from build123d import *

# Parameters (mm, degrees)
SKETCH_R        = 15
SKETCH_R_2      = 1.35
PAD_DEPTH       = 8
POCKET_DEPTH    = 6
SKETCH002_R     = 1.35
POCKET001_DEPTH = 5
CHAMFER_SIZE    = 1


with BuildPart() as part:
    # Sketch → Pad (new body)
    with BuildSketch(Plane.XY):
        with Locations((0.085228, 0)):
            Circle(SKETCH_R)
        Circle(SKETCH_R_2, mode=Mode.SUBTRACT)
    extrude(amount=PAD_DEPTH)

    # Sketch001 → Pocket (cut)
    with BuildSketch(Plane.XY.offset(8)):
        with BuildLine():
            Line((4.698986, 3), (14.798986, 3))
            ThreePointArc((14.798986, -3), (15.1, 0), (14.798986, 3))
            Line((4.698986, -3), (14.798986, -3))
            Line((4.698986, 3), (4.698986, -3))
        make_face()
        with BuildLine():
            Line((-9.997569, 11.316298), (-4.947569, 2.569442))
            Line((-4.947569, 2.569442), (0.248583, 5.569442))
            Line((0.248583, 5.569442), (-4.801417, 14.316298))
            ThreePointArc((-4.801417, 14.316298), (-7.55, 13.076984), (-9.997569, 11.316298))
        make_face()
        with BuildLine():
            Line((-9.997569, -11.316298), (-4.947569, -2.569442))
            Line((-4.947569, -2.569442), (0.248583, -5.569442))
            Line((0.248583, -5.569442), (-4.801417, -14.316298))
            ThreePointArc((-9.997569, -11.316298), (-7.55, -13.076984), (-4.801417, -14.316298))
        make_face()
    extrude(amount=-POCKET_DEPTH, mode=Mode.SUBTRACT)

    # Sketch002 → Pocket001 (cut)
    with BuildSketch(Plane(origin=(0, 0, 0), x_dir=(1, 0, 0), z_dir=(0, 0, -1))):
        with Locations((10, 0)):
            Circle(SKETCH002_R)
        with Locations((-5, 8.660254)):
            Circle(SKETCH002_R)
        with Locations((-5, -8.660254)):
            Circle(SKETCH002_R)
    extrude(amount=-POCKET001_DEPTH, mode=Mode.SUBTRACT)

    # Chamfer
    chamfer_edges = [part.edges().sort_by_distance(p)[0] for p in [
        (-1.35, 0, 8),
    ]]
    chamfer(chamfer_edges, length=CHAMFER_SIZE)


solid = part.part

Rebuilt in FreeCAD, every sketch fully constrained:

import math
import FreeCAD as App
import Part
import Sketcher
Q = App.Units.Quantity


def edges_at(feature, points):
    """Names of the edges that pass closest to the given points."""
    edges = feature.Shape.Edges
    near = lambda p: min(range(len(edges)), key=lambda i: edges[i].distToShape(Part.Vertex(*p))[0])
    return sorted({f"Edge{near(p) + 1}" for p in points})

doc = App.newDocument("Part")
body = doc.addObject("PartDesign::Body", "Body")

# Sketch on XY plane
sketch1 = body.newObject("Sketcher::SketchObject", "Sketch")
sketch1.AttachmentSupport = (doc.getObject("XY_Plane"), [""])
sketch1.MapMode = "FlatFace"
sketch1.addGeometry(Part.Circle(App.Vector(0.1, 0, 0), App.Vector(0, 0, 1), 15), False)
sketch1.addGeometry(Part.Circle(App.Vector(0, 0, 0), App.Vector(0, 0, 1), 1.4), False)
sketch1.addConstraint(Sketcher.Constraint("Coincident", 1, 3, -1, 1))
sketch1.addConstraint(Sketcher.Constraint("PointOnObject", 0, 3, -1))
sketch1.addConstraint(Sketcher.Constraint("Diameter", 0, Q("30 mm")))
sketch1.addConstraint(Sketcher.Constraint("Diameter", 1, Q("2.7 mm")))
sketch1.addConstraint(Sketcher.Constraint("DistanceX", -1, 1, 0, 3, Q("0.085228 mm")))
pad1 = body.newObject("PartDesign::Pad", "Pad")
pad1.Profile = sketch1
pad1.Length = 8

# Sketch on XY plane
sketch2 = body.newObject("Sketcher::SketchObject", "Sketch001")
sketch2.AttachmentSupport = (doc.getObject("XY_Plane"), [""])
sketch2.MapMode = "FlatFace"
sketch2.AttachmentOffset = App.Placement(App.Vector(0, 0, 8), App.Rotation())
sketch2.addGeometry(Part.LineSegment(App.Vector(15, 3, 0), App.Vector(5, 3, 0)), False)
sketch2.addGeometry(Part.LineSegment(App.Vector(5, 3, 0), App.Vector(5, -3, 0)), False)
sketch2.addGeometry(Part.LineSegment(App.Vector(5, -3, 0), App.Vector(15, -3, 0)), False)
sketch2.addGeometry(Part.ArcOfCircle(Part.Circle(App.Vector(0, 0, 0), App.Vector(0, 0, 1), 15), math.radians(-11), math.radians(11)), False)
sketch2.addGeometry(Part.LineSegment(App.Vector(-10, 11, 0), App.Vector(-5, 3, 0)), False)
sketch2.addGeometry(Part.LineSegment(App.Vector(-5, 3, 0), App.Vector(0, 6, 0)), False)
sketch2.addGeometry(Part.LineSegment(App.Vector(0, 6, 0), App.Vector(-5, 14, 0)), False)
sketch2.addGeometry(Part.ArcOfCircle(Part.Circle(App.Vector(0, 0, 0), App.Vector(0, 0, 1), 15), math.radians(109), math.radians(131)), False)
sketch2.addGeometry(Part.LineSegment(App.Vector(-5, -3, 0), App.Vector(-10, -11, 0)), False)
sketch2.addGeometry(Part.ArcOfCircle(Part.Circle(App.Vector(0, 0, 0), App.Vector(0, 0, 1), 15), math.radians(-131), math.radians(-109)), False)
sketch2.addGeometry(Part.LineSegment(App.Vector(-5, -14, 0), App.Vector(0, -6, 0)), False)
sketch2.addGeometry(Part.LineSegment(App.Vector(0, -6, 0), App.Vector(-5, -3, 0)), False)
sketch2.addConstraint(Sketcher.Constraint("Coincident", 0, 2, 1, 1))
sketch2.addConstraint(Sketcher.Constraint("Coincident", 1, 2, 2, 1))
sketch2.addConstraint(Sketcher.Constraint("Coincident", 2, 2, 3, 1))
sketch2.addConstraint(Sketcher.Constraint("Coincident", 3, 2, 0, 1))
sketch2.addConstraint(Sketcher.Constraint("Coincident", 4, 2, 5, 1))
sketch2.addConstraint(Sketcher.Constraint("Coincident", 5, 2, 6, 1))
sketch2.addConstraint(Sketcher.Constraint("Coincident", 6, 2, 7, 1))
sketch2.addConstraint(Sketcher.Constraint("Coincident", 7, 2, 4, 1))
sketch2.addConstraint(Sketcher.Constraint("Coincident", 8, 2, 9, 1))
sketch2.addConstraint(Sketcher.Constraint("Coincident", 9, 2, 10, 1))
sketch2.addConstraint(Sketcher.Constraint("Coincident", 10, 2, 11, 1))
sketch2.addConstraint(Sketcher.Constraint("Coincident", 11, 2, 8, 1))
sketch2.addConstraint(Sketcher.Constraint("Horizontal", 0))
sketch2.addConstraint(Sketcher.Constraint("Vertical", 1))
sketch2.addConstraint(Sketcher.Constraint("Horizontal", 2))
sketch2.addConstraint(Sketcher.Constraint("Equal", 7, 9))
sketch2.addConstraint(Sketcher.Constraint("Symmetric", 7, 3, 9, 3, -1))
sketch2.addConstraint(Sketcher.Constraint("Symmetric", 2, 2, 3, 2, -1))
sketch2.addConstraint(Sketcher.Constraint("Symmetric", 5, 2, 10, 2, -1))
sketch2.addConstraint(Sketcher.Constraint("Symmetric", 4, 2, 11, 2, -1))
sketch2.addConstraint(Sketcher.Constraint("Perpendicular", 4, 5))
sketch2.addConstraint(Sketcher.Constraint("Perpendicular", 5, 6))
sketch2.addConstraint(Sketcher.Constraint("Parallel", 8, 10))
sketch2.addConstraint(Sketcher.Constraint("Perpendicular", 10, 11))
sketch2.addConstraint(Sketcher.Constraint("Equal", 4, 6))
sketch2.addConstraint(Sketcher.Constraint("DistanceY", 1, 2, 1, 1, Q("6 mm")))
sketch2.addConstraint(Sketcher.Constraint("Angle", 4, Q("-59.999998 deg")))
sketch2.addConstraint(Sketcher.Constraint("Distance", 5, Q("6 mm")))
sketch2.addConstraint(Sketcher.Constraint("DistanceX", 0, 2, 0, 1, Q("10.1 mm")))
sketch2.addConstraint(Sketcher.Constraint("Distance", 4, Q("10.099999 mm")))
sketch2.addConstraint(Sketcher.Constraint("Radius", 3, Q("15.099978 mm")))
sketch2.addConstraint(Sketcher.Constraint("Radius", 7, Q("15.099966 mm")))
sketch2.addConstraint(Sketcher.Constraint("DistanceX", 4, 2, -1, 1, Q("4.947569 mm")))
sketch2.addConstraint(Sketcher.Constraint("DistanceY", -1, 1, 4, 2, Q("2.569442 mm")))
sketch2.addConstraint(Sketcher.Constraint("DistanceX", 4, 2, 3, 3, Q("4.947591 mm")))
pocket1 = body.newObject("PartDesign::Pocket", "Pocket")
pocket1.Profile = sketch2
pocket1.Length = 6

# Sketch on XY plane
sketch3 = body.newObject("Sketcher::SketchObject", "Sketch002")
sketch3.AttachmentSupport = (doc.getObject("XY_Plane"), [""])
sketch3.MapMode = "FlatFace"
sketch3.addGeometry(Part.Circle(App.Vector(10, 0, 0), App.Vector(0, 0, 1), 1.4), False)
sketch3.addGeometry(Part.Circle(App.Vector(-5, -8.7, 0), App.Vector(0, 0, 1), 1.4), False)
sketch3.addGeometry(Part.Circle(App.Vector(-5, 8.7, 0), App.Vector(0, 0, 1), 1.4), False)
sketch3.addConstraint(Sketcher.Constraint("Equal", 0, 1))
sketch3.addConstraint(Sketcher.Constraint("Equal", 1, 2))
sketch3.addConstraint(Sketcher.Constraint("Symmetric", 1, 3, 2, 3, -1))
sketch3.addConstraint(Sketcher.Constraint("PointOnObject", 0, 3, -1))
sketch3.addConstraint(Sketcher.Constraint("Diameter", 0, Q("2.7 mm")))
sketch3.addConstraint(Sketcher.Constraint("DistanceX", -1, 1, 0, 3, Q("10 mm")))
sketch3.addConstraint(Sketcher.Constraint("DistanceX", 1, 3, -1, 1, Q("5 mm")))
sketch3.addConstraint(Sketcher.Constraint("DistanceY", 1, 3, 2, 3, Q("17.320508 mm")))
pocket2 = body.newObject("PartDesign::Pocket", "Pocket001")
pocket2.Profile = sketch3
pocket2.Length = 5
pocket2.Reversed = True
doc.recompute()

chamfer = body.newObject("PartDesign::Chamfer", "Chamfer")
chamfer.Base = (pocket2, edges_at(pocket2, [(-1.35, 0, 8)]))
chamfer.Size = 1

doc.recompute()
